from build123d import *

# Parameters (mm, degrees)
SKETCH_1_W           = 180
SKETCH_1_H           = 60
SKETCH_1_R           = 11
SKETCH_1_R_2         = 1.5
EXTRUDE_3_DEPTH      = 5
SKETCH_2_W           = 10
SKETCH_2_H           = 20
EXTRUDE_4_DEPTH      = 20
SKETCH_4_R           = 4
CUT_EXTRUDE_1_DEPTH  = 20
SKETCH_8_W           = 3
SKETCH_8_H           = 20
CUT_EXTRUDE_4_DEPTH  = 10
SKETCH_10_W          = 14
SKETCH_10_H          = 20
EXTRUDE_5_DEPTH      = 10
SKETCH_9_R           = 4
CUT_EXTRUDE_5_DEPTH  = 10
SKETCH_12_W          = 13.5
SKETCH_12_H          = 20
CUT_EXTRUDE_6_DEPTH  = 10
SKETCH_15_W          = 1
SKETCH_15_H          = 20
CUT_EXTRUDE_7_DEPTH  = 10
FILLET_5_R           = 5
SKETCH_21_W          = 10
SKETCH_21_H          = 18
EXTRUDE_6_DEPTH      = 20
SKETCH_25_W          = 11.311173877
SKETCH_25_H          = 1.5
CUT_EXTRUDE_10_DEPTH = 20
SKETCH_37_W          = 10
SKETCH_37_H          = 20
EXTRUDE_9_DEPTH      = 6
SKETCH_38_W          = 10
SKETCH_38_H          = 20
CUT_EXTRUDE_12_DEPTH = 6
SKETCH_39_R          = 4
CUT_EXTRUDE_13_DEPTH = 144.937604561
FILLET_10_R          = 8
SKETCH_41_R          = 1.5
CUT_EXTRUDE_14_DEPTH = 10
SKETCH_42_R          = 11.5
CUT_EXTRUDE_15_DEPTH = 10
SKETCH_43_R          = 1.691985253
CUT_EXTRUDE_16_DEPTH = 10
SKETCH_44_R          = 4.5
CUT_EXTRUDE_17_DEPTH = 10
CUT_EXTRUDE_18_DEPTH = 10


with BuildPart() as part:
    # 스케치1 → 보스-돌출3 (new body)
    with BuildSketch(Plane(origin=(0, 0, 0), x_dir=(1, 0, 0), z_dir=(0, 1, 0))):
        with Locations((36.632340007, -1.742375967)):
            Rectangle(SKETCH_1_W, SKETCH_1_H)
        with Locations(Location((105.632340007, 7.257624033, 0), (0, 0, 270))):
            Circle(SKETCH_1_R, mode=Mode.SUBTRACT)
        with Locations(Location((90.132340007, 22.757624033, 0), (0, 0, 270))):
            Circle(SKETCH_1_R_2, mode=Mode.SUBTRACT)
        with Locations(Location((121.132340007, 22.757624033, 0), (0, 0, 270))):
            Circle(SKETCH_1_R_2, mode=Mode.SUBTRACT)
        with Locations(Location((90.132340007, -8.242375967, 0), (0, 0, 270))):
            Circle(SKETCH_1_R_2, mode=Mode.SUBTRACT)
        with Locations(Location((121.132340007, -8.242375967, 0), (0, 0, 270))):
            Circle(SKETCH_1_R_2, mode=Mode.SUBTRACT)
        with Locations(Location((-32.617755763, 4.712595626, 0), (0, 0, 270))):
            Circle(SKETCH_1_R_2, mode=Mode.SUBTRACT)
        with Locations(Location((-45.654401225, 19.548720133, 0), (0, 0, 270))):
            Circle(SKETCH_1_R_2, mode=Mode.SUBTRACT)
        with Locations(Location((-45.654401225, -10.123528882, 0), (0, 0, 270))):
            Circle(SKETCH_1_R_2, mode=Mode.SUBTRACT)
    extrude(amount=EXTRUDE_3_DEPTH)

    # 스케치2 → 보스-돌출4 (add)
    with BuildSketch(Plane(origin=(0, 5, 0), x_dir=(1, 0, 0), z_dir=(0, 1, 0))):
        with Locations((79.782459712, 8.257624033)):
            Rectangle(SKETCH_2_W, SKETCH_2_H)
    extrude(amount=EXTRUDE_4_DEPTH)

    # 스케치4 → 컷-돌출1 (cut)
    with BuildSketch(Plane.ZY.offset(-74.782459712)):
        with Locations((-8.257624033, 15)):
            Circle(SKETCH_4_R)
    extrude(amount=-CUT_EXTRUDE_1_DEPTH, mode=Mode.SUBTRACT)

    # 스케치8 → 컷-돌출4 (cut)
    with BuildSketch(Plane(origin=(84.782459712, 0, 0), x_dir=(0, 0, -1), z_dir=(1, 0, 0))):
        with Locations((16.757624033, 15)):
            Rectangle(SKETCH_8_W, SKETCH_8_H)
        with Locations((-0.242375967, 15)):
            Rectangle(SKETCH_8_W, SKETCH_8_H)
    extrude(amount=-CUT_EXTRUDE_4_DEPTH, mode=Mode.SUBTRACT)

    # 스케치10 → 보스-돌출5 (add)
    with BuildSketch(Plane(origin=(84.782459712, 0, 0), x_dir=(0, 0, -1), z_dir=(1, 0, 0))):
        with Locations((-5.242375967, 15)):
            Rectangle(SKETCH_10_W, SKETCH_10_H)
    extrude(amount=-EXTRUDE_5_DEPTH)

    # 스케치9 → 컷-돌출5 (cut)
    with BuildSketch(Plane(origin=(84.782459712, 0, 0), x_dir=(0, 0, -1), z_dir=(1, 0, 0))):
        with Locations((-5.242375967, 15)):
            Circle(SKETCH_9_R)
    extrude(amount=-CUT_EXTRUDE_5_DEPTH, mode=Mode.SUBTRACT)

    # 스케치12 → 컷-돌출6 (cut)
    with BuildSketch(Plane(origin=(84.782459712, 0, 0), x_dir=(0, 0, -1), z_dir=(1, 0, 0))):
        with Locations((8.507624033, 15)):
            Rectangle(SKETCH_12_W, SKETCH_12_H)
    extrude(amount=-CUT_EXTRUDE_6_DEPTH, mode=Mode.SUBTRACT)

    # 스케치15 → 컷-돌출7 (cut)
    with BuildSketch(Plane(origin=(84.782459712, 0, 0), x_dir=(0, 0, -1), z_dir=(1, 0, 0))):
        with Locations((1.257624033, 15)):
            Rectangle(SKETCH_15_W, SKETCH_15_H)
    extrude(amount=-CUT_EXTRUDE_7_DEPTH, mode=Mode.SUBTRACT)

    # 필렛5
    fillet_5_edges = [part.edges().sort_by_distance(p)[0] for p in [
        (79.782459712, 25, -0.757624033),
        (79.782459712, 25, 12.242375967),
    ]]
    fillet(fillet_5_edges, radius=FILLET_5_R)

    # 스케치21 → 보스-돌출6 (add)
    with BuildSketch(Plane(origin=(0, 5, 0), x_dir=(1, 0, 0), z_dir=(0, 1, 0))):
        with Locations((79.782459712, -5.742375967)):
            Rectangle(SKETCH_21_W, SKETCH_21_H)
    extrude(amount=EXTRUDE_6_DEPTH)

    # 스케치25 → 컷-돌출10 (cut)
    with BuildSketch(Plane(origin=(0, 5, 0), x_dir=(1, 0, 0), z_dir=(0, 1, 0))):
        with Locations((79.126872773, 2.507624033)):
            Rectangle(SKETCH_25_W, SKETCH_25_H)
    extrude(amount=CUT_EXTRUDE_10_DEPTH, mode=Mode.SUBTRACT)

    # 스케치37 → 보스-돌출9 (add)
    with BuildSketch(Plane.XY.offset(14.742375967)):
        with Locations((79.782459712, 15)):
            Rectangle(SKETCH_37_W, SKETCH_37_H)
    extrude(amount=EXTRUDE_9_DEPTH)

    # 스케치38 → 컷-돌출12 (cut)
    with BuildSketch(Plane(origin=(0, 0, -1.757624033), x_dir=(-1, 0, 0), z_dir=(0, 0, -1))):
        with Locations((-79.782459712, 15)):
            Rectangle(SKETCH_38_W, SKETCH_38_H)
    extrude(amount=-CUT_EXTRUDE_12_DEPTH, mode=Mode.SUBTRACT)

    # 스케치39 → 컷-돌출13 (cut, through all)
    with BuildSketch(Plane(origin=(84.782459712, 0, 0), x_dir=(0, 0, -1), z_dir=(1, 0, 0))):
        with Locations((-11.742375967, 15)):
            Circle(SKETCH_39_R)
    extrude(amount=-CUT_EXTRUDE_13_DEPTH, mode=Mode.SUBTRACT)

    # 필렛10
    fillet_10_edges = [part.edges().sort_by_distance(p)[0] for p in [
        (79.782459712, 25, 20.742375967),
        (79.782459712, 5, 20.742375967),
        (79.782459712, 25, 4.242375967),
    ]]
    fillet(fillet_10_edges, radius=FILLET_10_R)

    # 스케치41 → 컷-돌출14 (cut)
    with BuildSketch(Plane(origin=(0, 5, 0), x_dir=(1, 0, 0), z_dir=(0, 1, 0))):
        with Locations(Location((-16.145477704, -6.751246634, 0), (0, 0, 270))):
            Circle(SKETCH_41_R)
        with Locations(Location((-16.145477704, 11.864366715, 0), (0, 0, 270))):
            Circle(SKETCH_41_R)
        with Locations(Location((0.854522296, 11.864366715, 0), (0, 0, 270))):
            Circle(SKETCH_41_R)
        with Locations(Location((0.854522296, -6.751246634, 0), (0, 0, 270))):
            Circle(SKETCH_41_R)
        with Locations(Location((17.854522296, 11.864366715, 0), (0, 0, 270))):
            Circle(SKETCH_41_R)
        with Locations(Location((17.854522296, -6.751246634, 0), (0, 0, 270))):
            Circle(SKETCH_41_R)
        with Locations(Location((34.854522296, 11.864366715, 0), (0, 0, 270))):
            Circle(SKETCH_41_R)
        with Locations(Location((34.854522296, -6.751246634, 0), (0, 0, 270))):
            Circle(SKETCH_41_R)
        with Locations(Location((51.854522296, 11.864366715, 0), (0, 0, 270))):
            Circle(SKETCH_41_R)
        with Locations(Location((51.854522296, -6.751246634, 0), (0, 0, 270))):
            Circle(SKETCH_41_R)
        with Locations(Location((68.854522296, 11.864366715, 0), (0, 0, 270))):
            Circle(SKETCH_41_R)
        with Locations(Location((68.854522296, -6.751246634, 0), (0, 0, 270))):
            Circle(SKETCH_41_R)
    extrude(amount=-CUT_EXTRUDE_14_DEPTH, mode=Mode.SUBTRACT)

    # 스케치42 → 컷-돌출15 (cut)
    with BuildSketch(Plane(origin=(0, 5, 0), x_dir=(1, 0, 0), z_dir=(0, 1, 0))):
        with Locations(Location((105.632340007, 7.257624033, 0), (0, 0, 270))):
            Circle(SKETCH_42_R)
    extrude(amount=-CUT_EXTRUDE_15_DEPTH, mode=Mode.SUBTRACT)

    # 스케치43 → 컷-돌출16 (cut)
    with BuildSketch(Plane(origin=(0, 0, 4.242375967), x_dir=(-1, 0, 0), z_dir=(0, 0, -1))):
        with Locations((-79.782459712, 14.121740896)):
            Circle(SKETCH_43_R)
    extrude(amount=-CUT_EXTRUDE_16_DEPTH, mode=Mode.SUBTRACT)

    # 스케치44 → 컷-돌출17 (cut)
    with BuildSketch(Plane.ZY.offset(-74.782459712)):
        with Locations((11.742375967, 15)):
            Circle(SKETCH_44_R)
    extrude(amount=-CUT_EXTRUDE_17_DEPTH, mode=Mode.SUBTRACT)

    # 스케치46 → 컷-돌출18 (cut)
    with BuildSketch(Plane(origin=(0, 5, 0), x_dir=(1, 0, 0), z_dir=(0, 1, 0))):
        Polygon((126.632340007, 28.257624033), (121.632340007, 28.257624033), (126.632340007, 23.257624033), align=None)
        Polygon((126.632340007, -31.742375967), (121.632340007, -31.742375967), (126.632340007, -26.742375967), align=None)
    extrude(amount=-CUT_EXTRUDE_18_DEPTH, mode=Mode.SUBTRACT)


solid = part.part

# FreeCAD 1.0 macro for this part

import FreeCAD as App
import Part
import Sketcher
Q = App.Units.Quantity


def edges_at(feature, points):
    """Names of the edges that pass closest to the given points."""
    edges = feature.Shape.Edges
    near = lambda p: min(range(len(edges)), key=lambda i: edges[i].distToShape(Part.Vertex(*p))[0])
    return sorted({f"Edge{near(p) + 1}" for p in points})

doc = App.newDocument("Part")
body = doc.addObject("PartDesign::Body", "Body")

# Sketch on XZ plane
sketch1 = doc.addObject("Sketcher::SketchObject", "Sketch")
body.addObject(sketch1)
sketch1.AttachmentSupport = (doc.XZ_Plane, [""])
sketch1.MapMode = "FlatFace"
sketch1.addGeometry([
    Part.LineSegment(App.Vector(-53.36766, -28.257624, 0), App.Vector(-53.36766, 31.742376, 0)),  # 0
    Part.LineSegment(App.Vector(-53.36766, 31.742376, 0), App.Vector(126.63234, 31.742376, 0)),  # 1
    Part.LineSegment(App.Vector(126.63234, 31.742376, 0), App.Vector(126.63234, -28.257624, 0)),  # 2
    Part.LineSegment(App.Vector(126.63234, -28.257624, 0), App.Vector(-53.36766, -28.257624, 0)),  # 3
    Part.Circle(App.Vector(-45.654401, 10.123529, 0), App.Vector(0, 0, 1), 1.5),  # 4
    Part.Circle(App.Vector(-32.617756, -4.712596, 0), App.Vector(0, 0, 1), 1.5),  # 5
    Part.Circle(App.Vector(90.13234, 8.242376, 0), App.Vector(0, 0, 1), 1.5),  # 6
    Part.Circle(App.Vector(121.13234, 8.242376, 0), App.Vector(0, 0, 1), 1.5),  # 7
    Part.Circle(App.Vector(-45.654401, -19.54872, 0), App.Vector(0, 0, 1), 1.5),  # 8
    Part.Circle(App.Vector(105.63234, -7.257624, 0), App.Vector(0, 0, 1), 11),  # 9
    Part.Circle(App.Vector(90.13234, -22.757624, 0), App.Vector(0, 0, 1), 1.5),  # 10
    Part.Circle(App.Vector(121.13234, -22.757624, 0), App.Vector(0, 0, 1), 1.5),  # 11
], False)
sketch1.addConstraint([
    Sketcher.Constraint("Coincident", 0, 2, 1, 1),
    Sketcher.Constraint("Coincident", 1, 2, 2, 1),
    Sketcher.Constraint("Coincident", 2, 2, 3, 1),
    Sketcher.Constraint("Coincident", 3, 2, 0, 1),
    Sketcher.Constraint("Vertical", 0),
    Sketcher.Constraint("Horizontal", 1),
    Sketcher.Constraint("Vertical", 2),
    Sketcher.Constraint("Horizontal", 3),
    Sketcher.Constraint("Equal", 4, 5),
    Sketcher.Constraint("Equal", 5, 6),
    Sketcher.Constraint("Equal", 6, 7),
    Sketcher.Constraint("Equal", 7, 8),
    Sketcher.Constraint("Equal", 8, 10),
    Sketcher.Constraint("Equal", 10, 11),
    Sketcher.Constraint("Horizontal", 6, 3, 7, 3),
    Sketcher.Constraint("Horizontal", 10, 3, 11, 3),
    Sketcher.Constraint("Vertical", 4, 3, 8, 3),
    Sketcher.Constraint("Vertical", 6, 3, 10, 3),
    Sketcher.Constraint("Vertical", 7, 3, 11, 3),
    Sketcher.Constraint("Diameter", 4, Q("3 mm")),
    Sketcher.Constraint("Diameter", 9, Q("22 mm")),
    Sketcher.Constraint("DistanceX", 1, 1, 1, 2, Q("180 mm")),
    Sketcher.Constraint("DistanceY", 0, 1, 0, 2, Q("60 mm")),
    Sketcher.Constraint("DistanceX", 6, 3, 7, 3, Q("31 mm")),
    Sketcher.Constraint("DistanceY", 10, 3, 6, 3, Q("31 mm")),
    Sketcher.Constraint("DistanceX", 9, 3, 1, 2, Q("21 mm")),
    Sketcher.Constraint("DistanceY", 9, 3, 1, 2, Q("39 mm")),
    Sketcher.Constraint("DistanceX", 6, 3, 9, 3, Q("15.5 mm")),
    Sketcher.Constraint("DistanceY", 9, 3, 6, 3, Q("15.5 mm")),
    Sketcher.Constraint("DistanceX", 4, 3, -1, 1, Q("45.654401 mm")),
    Sketcher.Constraint("DistanceY", -1, 1, 4, 3, Q("10.123529 mm")),
    Sketcher.Constraint("DistanceX", -1, 1, 6, 3, Q("90.13234 mm")),
    Sketcher.Constraint("DistanceY", 8, 3, -1, 1, Q("19.54872 mm")),
    Sketcher.Constraint("DistanceY", 5, 3, 6, 3, Q("12.954972 mm")),
    Sketcher.Constraint("DistanceX", 5, 3, -1, 1, Q("32.617756 mm")),
    Sketcher.Constraint("DistanceY", 5, 3, -1, 1, Q("4.712596 mm")),
])
pad1 = doc.addObject("PartDesign::Pad", "Pad")
body.addObject(pad1)
pad1.Profile = sketch1
pad1.Length = 5
pad1.Reversed = True

# Sketch on XZ plane
sketch2 = doc.addObject("Sketcher::SketchObject", "Sketch001")
body.addObject(sketch2)
sketch2.AttachmentSupport = (doc.XZ_Plane, [""])
sketch2.MapMode = "FlatFace"
sketch2.AttachmentOffset = App.Placement(App.Vector(0, 0, -5), App.Rotation())
sketch2.addGeometry([
    Part.LineSegment(App.Vector(74.78246, -18.257624, 0), App.Vector(74.78246, 1.742376, 0)),
    Part.LineSegment(App.Vector(74.78246, 1.742376, 0), App.Vector(84.78246, 1.742376, 0)),
    Part.LineSegment(App.Vector(84.78246, 1.742376, 0), App.Vector(84.78246, -18.257624, 0)),
    Part.LineSegment(App.Vector(84.78246, -18.257624, 0), App.Vector(74.78246, -18.257624, 0)),
], False)
sketch2.addConstraint([
    Sketcher.Constraint("Coincident", 0, 2, 1, 1),
    Sketcher.Constraint("Coincident", 1, 2, 2, 1),
    Sketcher.Constraint("Coincident", 2, 2, 3, 1),
    Sketcher.Constraint("Coincident", 3, 2, 0, 1),
    Sketcher.Constraint("Vertical", 0),
    Sketcher.Constraint("Horizontal", 1),
    Sketcher.Constraint("Vertical", 2),
    Sketcher.Constraint("Horizontal", 3),
    Sketcher.Constraint("DistanceX", 1, 1, 1, 2, Q("10 mm")),
    Sketcher.Constraint("DistanceY", 0, 1, 0, 2, Q("20 mm")),
    Sketcher.Constraint("DistanceX", -1, 1, 0, 2, Q("74.78246 mm")),
    Sketcher.Constraint("DistanceY", -1, 1, 0, 2, Q("1.742376 mm")),
])
pad2 = doc.addObject("PartDesign::Pad", "Pad001")
body.addObject(pad2)
pad2.Profile = sketch2
pad2.Length = 20
pad2.Reversed = True

# Sketch on YZ plane
sketch3 = doc.addObject("Sketcher::SketchObject", "Sketch002")
body.addObject(sketch3)
sketch3.AttachmentSupport = (doc.YZ_Plane, [""])
sketch3.MapMode = "FlatFace"
sketch3.AttachmentOffset = App.Placement(App.Vector(0, 0, 74.78246), App.Rotation())
sketch3.addGeometry(Part.Circle(App.Vector(15, -8.257624, 0), App.Vector(0, 0, 1), 4), False)
sketch3.addConstraint([
    Sketcher.Constraint("Diameter", 0, Q("8 mm")),
    Sketcher.Constraint("DistanceX", -1, 1, 0, 3, Q("15 mm")),
    Sketcher.Constraint("DistanceY", 0, 3, -1, 1, Q("8.257624 mm")),
])
pocket1 = doc.addObject("PartDesign::Pocket", "Pocket")
body.addObject(pocket1)
pocket1.Profile = sketch3
pocket1.Length = 20
pocket1.Reversed = True

# Sketch on YZ plane
sketch4 = doc.addObject("Sketcher::SketchObject", "Sketch003")
body.addObject(sketch4)
sketch4.AttachmentSupport = (doc.YZ_Plane, [""])
sketch4.MapMode = "FlatFace"
sketch4.AttachmentOffset = App.Placement(App.Vector(0, 0, 84.78246), App.Rotation())
sketch4.addGeometry([
    Part.LineSegment(App.Vector(25, -15.257624, 0), App.Vector(5, -15.257624, 0)),  # 0
    Part.LineSegment(App.Vector(5, -15.257624, 0), App.Vector(5, -18.257624, 0)),  # 1
    Part.LineSegment(App.Vector(5, -18.257624, 0), App.Vector(25, -18.257624, 0)),  # 2
    Part.LineSegment(App.Vector(25, -18.257624, 0), App.Vector(25, -15.257624, 0)),  # 3
    Part.LineSegment(App.Vector(25, 1.742376, 0), App.Vector(5, 1.742376, 0)),  # 4
    Part.LineSegment(App.Vector(5, 1.742376, 0), App.Vector(5, -1.257624, 0)),  # 5
    Part.LineSegment(App.Vector(5, -1.257624, 0), App.Vector(25, -1.257624, 0)),  # 6
    Part.LineSegment(App.Vector(25, -1.257624, 0), App.Vector(25, 1.742376, 0)),  # 7
], False)
sketch4.addConstraint([
    Sketcher.Constraint("Coincident", 0, 2, 1, 1),
    Sketcher.Constraint("Coincident", 1, 2, 2, 1),
    Sketcher.Constraint("Coincident", 2, 2, 3, 1),
    Sketcher.Constraint("Coincident", 3, 2, 0, 1),
    Sketcher.Constraint("Coincident", 4, 2, 5, 1),
    Sketcher.Constraint("Coincident", 5, 2, 6, 1),
    Sketcher.Constraint("Coincident", 6, 2, 7, 1),
    Sketcher.Constraint("Coincident", 7, 2, 4, 1),
    Sketcher.Constraint("Horizontal", 0),
    Sketcher.Constraint("Vertical", 1),
    Sketcher.Constraint("Horizontal", 2),
    Sketcher.Constraint("Vertical", 3),
    Sketcher.Constraint("Horizontal", 4),
    Sketcher.Constraint("Vertical", 5),
    Sketcher.Constraint("Horizontal", 6),
    Sketcher.Constraint("Vertical", 7),
    Sketcher.Constraint("Vertical", 1, 2, 4, 2),
    Sketcher.Constraint("Vertical", 3, 2, 6, 2),
    Sketcher.Constraint("Equal", 3, 5),
    Sketcher.Constraint("DistanceX", 0, 2, 0, 1, Q("20 mm")),
    Sketcher.Constraint("DistanceY", 1, 2, 1, 1, Q("3 mm")),
    Sketcher.Constraint("DistanceX", -1, 1, 0, 2, Q("5 mm")),
    Sketcher.Constraint("DistanceY", 0, 2, 4, 2, Q("17 mm")),
    Sketcher.Constraint("DistanceY", 0, 2, -1, 1, Q("15.257624 mm")),
])
pocket2 = doc.addObject("PartDesign::Pocket", "Pocket001")
body.addObject(pocket2)
pocket2.Profile = sketch4
pocket2.Length = 10

# Sketch on YZ plane
sketch5 = doc.addObject("Sketcher::SketchObject", "Sketch004")
body.addObject(sketch5)
sketch5.AttachmentSupport = (doc.YZ_Plane, [""])
sketch5.MapMode = "FlatFace"
sketch5.AttachmentOffset = App.Placement(App.Vector(0, 0, 84.78246), App.Rotation())
sketch5.addGeometry([
    Part.LineSegment(App.Vector(25, 12.242376, 0), App.Vector(5, 12.242376, 0)),
    Part.LineSegment(App.Vector(5, 12.242376, 0), App.Vector(5, -1.757624, 0)),
    Part.LineSegment(App.Vector(5, -1.757624, 0), App.Vector(25, -1.757624, 0)),
    Part.LineSegment(App.Vector(25, -1.757624, 0), App.Vector(25, 12.242376, 0)),
], False)
sketch5.addConstraint([
    Sketcher.Constraint("Coincident", 0, 2, 1, 1),
    Sketcher.Constraint("Coincident", 1, 2, 2, 1),
    Sketcher.Constraint("Coincident", 2, 2, 3, 1),
    Sketcher.Constraint("Coincident", 3, 2, 0, 1),
    Sketcher.Constraint("Horizontal", 0),
    Sketcher.Constraint("Vertical", 1),
    Sketcher.Constraint("Horizontal", 2),
    Sketcher.Constraint("Vertical", 3),
    Sketcher.Constraint("DistanceX", 0, 2, 0, 1, Q("20 mm")),
    Sketcher.Constraint("DistanceY", 1, 2, 1, 1, Q("14 mm")),
    Sketcher.Constraint("DistanceX", -1, 1, 0, 2, Q("5 mm")),
    Sketcher.Constraint("DistanceY", -1, 1, 0, 2, Q("12.242376 mm")),
])
pad3 = doc.addObject("PartDesign::Pad", "Pad002")
body.addObject(pad3)
pad3.Profile = sketch5
pad3.Length = 10
pad3.Reversed = True

# Sketch on YZ plane
sketch6 = doc.addObject("Sketcher::SketchObject", "Sketch005")
body.addObject(sketch6)
sketch6.AttachmentSupport = (doc.YZ_Plane, [""])
sketch6.MapMode = "FlatFace"
sketch6.AttachmentOffset = App.Placement(App.Vector(0, 0, 84.78246), App.Rotation())
sketch6.addGeometry(Part.Circle(App.Vector(15, 5.242376, 0), App.Vector(0, 0, 1), 4), False)
sketch6.addConstraint([
    Sketcher.Constraint("Diameter", 0, Q("8 mm")),
    Sketcher.Constraint("DistanceX", -1, 1, 0, 3, Q("15 mm")),
    Sketcher.Constraint("DistanceY", -1, 1, 0, 3, Q("5.242376 mm")),
])
pocket3 = doc.addObject("PartDesign::Pocket", "Pocket002")
body.addObject(pocket3)
pocket3.Profile = sketch6
pocket3.Length = 10

# Sketch on YZ plane
sketch7 = doc.addObject("Sketcher::SketchObject", "Sketch006")
body.addObject(sketch7)
sketch7.AttachmentSupport = (doc.YZ_Plane, [""])
sketch7.MapMode = "FlatFace"
sketch7.AttachmentOffset = App.Placement(App.Vector(0, 0, 84.78246), App.Rotation())
sketch7.addGeometry([
    Part.LineSegment(App.Vector(25, -1.757624, 0), App.Vector(5, -1.757624, 0)),
    Part.LineSegment(App.Vector(5, -1.757624, 0), App.Vector(5, -15.257624, 0)),
    Part.LineSegment(App.Vector(5, -15.257624, 0), App.Vector(25, -15.257624, 0)),
    Part.LineSegment(App.Vector(25, -15.257624, 0), App.Vector(25, -1.757624, 0)),
], False)
sketch7.addConstraint([
    Sketcher.Constraint("Coincident", 0, 2, 1, 1),
    Sketcher.Constraint("Coincident", 1, 2, 2, 1),
    Sketcher.Constraint("Coincident", 2, 2, 3, 1),
    Sketcher.Constraint("Coincident", 3, 2, 0, 1),
    Sketcher.Constraint("Horizontal", 0),
    Sketcher.Constraint("Vertical", 1),
    Sketcher.Constraint("Horizontal", 2),
    Sketcher.Constraint("Vertical", 3),
    Sketcher.Constraint("DistanceX", 0, 2, 0, 1, Q("20 mm")),
    Sketcher.Constraint("DistanceY", 1, 2, 1, 1, Q("13.5 mm")),
    Sketcher.Constraint("DistanceX", -1, 1, 0, 2, Q("5 mm")),
    Sketcher.Constraint("DistanceY", 0, 2, -1, 1, Q("1.757624 mm")),
])
pocket4 = doc.addObject("PartDesign::Pocket", "Pocket003")
body.addObject(pocket4)
pocket4.Profile = sketch7
pocket4.Length = 10

# Sketch on YZ plane
sketch8 = doc.addObject("Sketcher::SketchObject", "Sketch007")
body.addObject(sketch8)
sketch8.AttachmentSupport = (doc.YZ_Plane, [""])
sketch8.MapMode = "FlatFace"
sketch8.AttachmentOffset = App.Placement(App.Vector(0, 0, 84.78246), App.Rotation())
sketch8.addGeometry([
    Part.LineSegment(App.Vector(25, -0.757624, 0), App.Vector(5, -0.757624, 0)),
    Part.LineSegment(App.Vector(5, -0.757624, 0), App.Vector(5, -1.757624, 0)),
    Part.LineSegment(App.Vector(5, -1.757624, 0), App.Vector(25, -1.757624, 0)),
    Part.LineSegment(App.Vector(25, -1.757624, 0), App.Vector(25, -0.757624, 0)),
], False)
sketch8.addConstraint([
    Sketcher.Constraint("Coincident", 0, 2, 1, 1),
    Sketcher.Constraint("Coincident", 1, 2, 2, 1),
    Sketcher.Constraint("Coincident", 2, 2, 3, 1),
    Sketcher.Constraint("Coincident", 3, 2, 0, 1),
    Sketcher.Constraint("Horizontal", 0),
    Sketcher.Constraint("Vertical", 1),
    Sketcher.Constraint("Horizontal", 2),
    Sketcher.Constraint("Vertical", 3),
    Sketcher.Constraint("DistanceX", 0, 2, 0, 1, Q("20 mm")),
    Sketcher.Constraint("DistanceY", 1, 2, 1, 1, Q("1 mm")),
    Sketcher.Constraint("DistanceX", -1, 1, 0, 2, Q("5 mm")),
    Sketcher.Constraint("DistanceY", 0, 2, -1, 1, Q("0.757624 mm")),
])
pocket5 = doc.addObject("PartDesign::Pocket", "Pocket004")
body.addObject(pocket5)
pocket5.Profile = sketch8
pocket5.Length = 10
doc.recompute()

fillet = doc.addObject("PartDesign::Fillet", "Fillet")
body.addObject(fillet)
fillet.Base = (pocket5, edges_at(pocket5, [(79.782, 25, -0.758), (79.782, 25, 12.242)]))
fillet.Radius = 5

# Sketch on XZ plane
sketch9 = doc.addObject("Sketcher::SketchObject", "Sketch008")
body.addObject(sketch9)
sketch9.AttachmentSupport = (doc.XZ_Plane, [""])
sketch9.MapMode = "FlatFace"
sketch9.AttachmentOffset = App.Placement(App.Vector(0, 0, -5), App.Rotation())
sketch9.addGeometry([
    Part.LineSegment(App.Vector(74.78246, -3.257624, 0), App.Vector(74.78246, 14.742376, 0)),
    Part.LineSegment(App.Vector(74.78246, 14.742376, 0), App.Vector(84.78246, 14.742376, 0)),
    Part.LineSegment(App.Vector(84.78246, 14.742376, 0), App.Vector(84.78246, -3.257624, 0)),
    Part.LineSegment(App.Vector(84.78246, -3.257624, 0), App.Vector(74.78246, -3.257624, 0)),
], False)
sketch9.addConstraint([
    Sketcher.Constraint("Coincident", 0, 2, 1, 1),
    Sketcher.Constraint("Coincident", 1, 2, 2, 1),
    Sketcher.Constraint("Coincident", 2, 2, 3, 1),
    Sketcher.Constraint("Coincident", 3, 2, 0, 1),
    Sketcher.Constraint("Vertical", 0),
    Sketcher.Constraint("Horizontal", 1),
    Sketcher.Constraint("Vertical", 2),
    Sketcher.Constraint("Horizontal", 3),
    Sketcher.Constraint("DistanceX", 1, 1, 1, 2, Q("10 mm")),
    Sketcher.Constraint("DistanceY", 0, 1, 0, 2, Q("18 mm")),
    Sketcher.Constraint("DistanceX", -1, 1, 0, 2, Q("74.78246 mm")),
    Sketcher.Constraint("DistanceY", -1, 1, 0, 2, Q("14.742376 mm")),
])
pad4 = doc.addObject("PartDesign::Pad", "Pad003")
body.addObject(pad4)
pad4.Profile = sketch9
pad4.Length = 20
pad4.Reversed = True

# Sketch on XZ plane
sketch10 = doc.addObject("Sketcher::SketchObject", "Sketch009")
body.addObject(sketch10)
sketch10.AttachmentSupport = (doc.XZ_Plane, [""])
sketch10.MapMode = "FlatFace"
sketch10.AttachmentOffset = App.Placement(App.Vector(0, 0, -5), App.Rotation())
sketch10.addGeometry([
    Part.LineSegment(App.Vector(73.471286, -3.257624, 0), App.Vector(73.471286, -1.757624, 0)),
    Part.LineSegment(App.Vector(73.471286, -1.757624, 0), App.Vector(84.78246, -1.757624, 0)),
    Part.LineSegment(App.Vector(84.78246, -1.757624, 0), App.Vector(84.78246, -3.257624, 0)),
    Part.LineSegment(App.Vector(84.78246, -3.257624, 0), App.Vector(73.471286, -3.257624, 0)),
], False)
sketch10.addConstraint([
    Sketcher.Constraint("Coincident", 0, 2, 1, 1),
    Sketcher.Constraint("Coincident", 1, 2, 2, 1),
    Sketcher.Constraint("Coincident", 2, 2, 3, 1),
    Sketcher.Constraint("Coincident", 3, 2, 0, 1),
    Sketcher.Constraint("Vertical", 0),
    Sketcher.Constraint("Horizontal", 1),
    Sketcher.Constraint("Vertical", 2),
    Sketcher.Constraint("Horizontal", 3),
    Sketcher.Constraint("DistanceY", 0, 1, 0, 2, Q("1.5 mm")),
    Sketcher.Constraint("DistanceX", 1, 1, 1, 2, Q("11.311174 mm")),
    Sketcher.Constraint("DistanceX", -1, 1, 1, 2, Q("84.78246 mm")),
    Sketcher.Constraint("DistanceY", 0, 2, -1, 1, Q("1.757624 mm")),
])
pocket6 = doc.addObject("PartDesign::Pocket", "Pocket005")
body.addObject(pocket6)
pocket6.Profile = sketch10
pocket6.Length = 20

# Sketch on XY plane
sketch11 = doc.addObject("Sketcher::SketchObject", "Sketch010")
body.addObject(sketch11)
sketch11.AttachmentSupport = (doc.XY_Plane, [""])
sketch11.MapMode = "FlatFace"
sketch11.AttachmentOffset = App.Placement(App.Vector(0, 0, 14.742376), App.Rotation())
sketch11.addGeometry([
    Part.LineSegment(App.Vector(74.78246, 25, 0), App.Vector(74.78246, 5, 0)),
    Part.LineSegment(App.Vector(74.78246, 5, 0), App.Vector(84.78246, 5, 0)),
    Part.LineSegment(App.Vector(84.78246, 5, 0), App.Vector(84.78246, 25, 0)),
    Part.LineSegment(App.Vector(84.78246, 25, 0), App.Vector(74.78246, 25, 0)),
], False)
sketch11.addConstraint([
    Sketcher.Constraint("Coincident", 0, 2, 1, 1),
    Sketcher.Constraint("Coincident", 1, 2, 2, 1),
    Sketcher.Constraint("Coincident", 2, 2, 3, 1),
    Sketcher.Constraint("Coincident", 3, 2, 0, 1),
    Sketcher.Constraint("Vertical", 0),
    Sketcher.Constraint("Horizontal", 1),
    Sketcher.Constraint("Vertical", 2),
    Sketcher.Constraint("Horizontal", 3),
    Sketcher.Constraint("DistanceX", 1, 1, 1, 2, Q("10 mm")),
    Sketcher.Constraint("DistanceY", 0, 2, 0, 1, Q("20 mm")),
    Sketcher.Constraint("DistanceY", -1, 1, 0, 2, Q("5 mm")),
    Sketcher.Constraint("DistanceX", -1, 1, 0, 2, Q("74.78246 mm")),
])
pad5 = doc.addObject("PartDesign::Pad", "Pad004")
body.addObject(pad5)
pad5.Profile = sketch11
pad5.Length = 6

# Sketch on XY plane
sketch12 = doc.addObject("Sketcher::SketchObject", "Sketch011")
body.addObject(sketch12)
sketch12.AttachmentSupport = (doc.XY_Plane, [""])
sketch12.MapMode = "FlatFace"
sketch12.AttachmentOffset = App.Placement(App.Vector(0, 0, -1.757624), App.Rotation())
sketch12.addGeometry([
    Part.LineSegment(App.Vector(84.78246, 25, 0), App.Vector(84.78246, 5, 0)),
    Part.LineSegment(App.Vector(84.78246, 5, 0), App.Vector(74.78246, 5, 0)),
    Part.LineSegment(App.Vector(74.78246, 5, 0), App.Vector(74.78246, 25, 0)),
    Part.LineSegment(App.Vector(74.78246, 25, 0), App.Vector(84.78246, 25, 0)),
], False)
sketch12.addConstraint([
    Sketcher.Constraint("Coincident", 0, 2, 1, 1),
    Sketcher.Constraint("Coincident", 1, 2, 2, 1),
    Sketcher.Constraint("Coincident", 2, 2, 3, 1),
    Sketcher.Constraint("Coincident", 3, 2, 0, 1),
    Sketcher.Constraint("Vertical", 0),
    Sketcher.Constraint("Horizontal", 1),
    Sketcher.Constraint("Vertical", 2),
    Sketcher.Constraint("Horizontal", 3),
    Sketcher.Constraint("DistanceX", 1, 2, 1, 1, Q("10 mm")),
    Sketcher.Constraint("DistanceY", 0, 2, 0, 1, Q("20 mm")),
    Sketcher.Constraint("DistanceY", -1, 1, 0, 2, Q("5 mm")),
    Sketcher.Constraint("DistanceX", -1, 1, 0, 2, Q("84.78246 mm")),
])
pocket7 = doc.addObject("PartDesign::Pocket", "Pocket006")
body.addObject(pocket7)
pocket7.Profile = sketch12
pocket7.Length = 6
pocket7.Reversed = True

# Sketch on YZ plane
sketch13 = doc.addObject("Sketcher::SketchObject", "Sketch012")
body.addObject(sketch13)
sketch13.AttachmentSupport = (doc.YZ_Plane, [""])
sketch13.MapMode = "FlatFace"
sketch13.AttachmentOffset = App.Placement(App.Vector(0, 0, 84.78246), App.Rotation())
sketch13.addGeometry(Part.Circle(App.Vector(15, 11.742376, 0), App.Vector(0, 0, 1), 4), False)
sketch13.addConstraint([
    Sketcher.Constraint("Diameter", 0, Q("8 mm")),
    Sketcher.Constraint("DistanceX", -1, 1, 0, 3, Q("15 mm")),
    Sketcher.Constraint("DistanceY", -1, 1, 0, 3, Q("11.742376 mm")),
])
pocket8 = doc.addObject("PartDesign::Pocket", "Pocket007")
body.addObject(pocket8)
pocket8.Profile = sketch13
pocket8.Type = "ThroughAll"
doc.recompute()

fillet2 = doc.addObject("PartDesign::Fillet", "Fillet001")
body.addObject(fillet2)
fillet2.Base = (pocket8, edges_at(pocket8, [(79.782, 25, 20.742), (79.782, 5, 20.742), (79.782, 25, 4.242)]))
fillet2.Radius = 8

# Sketch on XZ plane
sketch14 = doc.addObject("Sketcher::SketchObject", "Sketch013")
body.addObject(sketch14)
sketch14.AttachmentSupport = (doc.XZ_Plane, [""])
sketch14.MapMode = "FlatFace"
sketch14.AttachmentOffset = App.Placement(App.Vector(0, 0, -5), App.Rotation())
sketch14.addGeometry([
    Part.Circle(App.Vector(-16.145478, 6.751247, 0), App.Vector(0, 0, 1), 1.5),  # 0
    Part.Circle(App.Vector(-16.145478, -11.864367, 0), App.Vector(0, 0, 1), 1.5),  # 1
    Part.Circle(App.Vector(0.854522, -11.864367, 0), App.Vector(0, 0, 1), 1.5),  # 2
    Part.Circle(App.Vector(0.854522, 6.751247, 0), App.Vector(0, 0, 1), 1.5),  # 3
    Part.Circle(App.Vector(17.854522, -11.864367, 0), App.Vector(0, 0, 1), 1.5),  # 4
    Part.Circle(App.Vector(17.854522, 6.751247, 0), App.Vector(0, 0, 1), 1.5),  # 5
    Part.Circle(App.Vector(34.854522, -11.864367, 0), App.Vector(0, 0, 1), 1.5),  # 6
    Part.Circle(App.Vector(34.854522, 6.751247, 0), App.Vector(0, 0, 1), 1.5),  # 7
    Part.Circle(App.Vector(51.854522, -11.864367, 0), App.Vector(0, 0, 1), 1.5),  # 8
    Part.Circle(App.Vector(51.854522, 6.751247, 0), App.Vector(0, 0, 1), 1.5),  # 9
    Part.Circle(App.Vector(68.854522, -11.864367, 0), App.Vector(0, 0, 1), 1.5),  # 10
    Part.Circle(App.Vector(68.854522, 6.751247, 0), App.Vector(0, 0, 1), 1.5),  # 11
], False)
sketch14.addConstraint([
    Sketcher.Constraint("Equal", 0, 1),
    Sketcher.Constraint("Equal", 1, 2),
    Sketcher.Constraint("Equal", 2, 3),
    Sketcher.Constraint("Equal", 3, 4),
    Sketcher.Constraint("Equal", 4, 5),
    Sketcher.Constraint("Equal", 5, 6),
    Sketcher.Constraint("Equal", 6, 7),
    Sketcher.Constraint("Equal", 7, 8),
    Sketcher.Constraint("Equal", 8, 9),
    Sketcher.Constraint("Equal", 9, 10),
    Sketcher.Constraint("Equal", 10, 11),
    Sketcher.Constraint("Horizontal", 1, 3, 2, 3),
    Sketcher.Constraint("Horizontal", 0, 3, 3, 3),
    Sketcher.Constraint("Horizontal", 2, 3, 4, 3),
    Sketcher.Constraint("Horizontal", 3, 3, 5, 3),
    Sketcher.Constraint("Horizontal", 4, 3, 6, 3),
    Sketcher.Constraint("Horizontal", 5, 3, 7, 3),
    Sketcher.Constraint("Horizontal", 6, 3, 8, 3),
    Sketcher.Constraint("Horizontal", 7, 3, 9, 3),
    Sketcher.Constraint("Horizontal", 8, 3, 10, 3),
    Sketcher.Constraint("Horizontal", 9, 3, 11, 3),
    Sketcher.Constraint("Vertical", 0, 3, 1, 3),
    Sketcher.Constraint("Vertical", 2, 3, 3, 3),
    Sketcher.Constraint("Vertical", 4, 3, 5, 3),
    Sketcher.Constraint("Vertical", 6, 3, 7, 3),
    Sketcher.Constraint("Vertical", 8, 3, 9, 3),
    Sketcher.Constraint("Vertical", 10, 3, 11, 3),
    Sketcher.Constraint("Diameter", 0, Q("3 mm")),
    Sketcher.Constraint("DistanceX", 1, 3, 2, 3, Q("17 mm")),
    Sketcher.Constraint("DistanceX", 2, 3, 4, 3, Q("17 mm")),
    Sketcher.Constraint("DistanceX", 4, 3, 6, 3, Q("17 mm")),
    Sketcher.Constraint("DistanceX", 6, 3, 8, 3, Q("17 mm")),
    Sketcher.Constraint("DistanceX", 8, 3, 10, 3, Q("17 mm")),
    Sketcher.Constraint("DistanceX", 0, 3, -1, 1, Q("16.145478 mm")),
    Sketcher.Constraint("DistanceY", -1, 1, 0, 3, Q("6.751247 mm")),
    Sketcher.Constraint("DistanceY", 1, 3, -1, 1, Q("11.864367 mm")),
])
pocket9 = doc.addObject("PartDesign::Pocket", "Pocket008")
body.addObject(pocket9)
pocket9.Profile = sketch14
pocket9.Length = 10
pocket9.Reversed = True

# Sketch on XZ plane
sketch15 = doc.addObject("Sketcher::SketchObject", "Sketch014")
body.addObject(sketch15)
sketch15.AttachmentSupport = (doc.XZ_Plane, [""])
sketch15.MapMode = "FlatFace"
sketch15.AttachmentOffset = App.Placement(App.Vector(0, 0, -5), App.Rotation())
sketch15.addGeometry(Part.Circle(App.Vector(105.63234, -7.257624, 0), App.Vector(0, 0, 1), 11.5), False)
sketch15.addConstraint([
    Sketcher.Constraint("Diameter", 0, Q("23 mm")),
    Sketcher.Constraint("DistanceX", -1, 1, 0, 3, Q("105.63234 mm")),
    Sketcher.Constraint("DistanceY", 0, 3, -1, 1, Q("7.257624 mm")),
])
pocket10 = doc.addObject("PartDesign::Pocket", "Pocket009")
body.addObject(pocket10)
pocket10.Profile = sketch15
pocket10.Length = 10
pocket10.Reversed = True

# Sketch on XY plane
sketch16 = doc.addObject("Sketcher::SketchObject", "Sketch015")
body.addObject(sketch16)
sketch16.AttachmentSupport = (doc.XY_Plane, [""])
sketch16.MapMode = "FlatFace"
sketch16.AttachmentOffset = App.Placement(App.Vector(0, 0, 4.242376), App.Rotation())
sketch16.addGeometry(Part.Circle(App.Vector(79.78246, 14.121741, 0), App.Vector(0, 0, 1), 1.691985), False)
sketch16.addConstraint([
    Sketcher.Constraint("Diameter", 0, Q("3.383971 mm")),
    Sketcher.Constraint("DistanceX", -1, 1, 0, 3, Q("79.78246 mm")),
    Sketcher.Constraint("DistanceY", -1, 1, 0, 3, Q("14.121741 mm")),
])
pocket11 = doc.addObject("PartDesign::Pocket", "Pocket010")
body.addObject(pocket11)
pocket11.Profile = sketch16
pocket11.Length = 10
pocket11.Reversed = True

# Sketch on YZ plane
sketch17 = doc.addObject("Sketcher::SketchObject", "Sketch016")
body.addObject(sketch17)
sketch17.AttachmentSupport = (doc.YZ_Plane, [""])
sketch17.MapMode = "FlatFace"
sketch17.AttachmentOffset = App.Placement(App.Vector(0, 0, 74.78246), App.Rotation())
sketch17.addGeometry(Part.Circle(App.Vector(15, 11.742376, 0), App.Vector(0, 0, 1), 4.5), False)
sketch17.addConstraint([
    Sketcher.Constraint("Diameter", 0, Q("9 mm")),
    Sketcher.Constraint("DistanceX", -1, 1, 0, 3, Q("15 mm")),
    Sketcher.Constraint("DistanceY", -1, 1, 0, 3, Q("11.742376 mm")),
])
pocket12 = doc.addObject("PartDesign::Pocket", "Pocket011")
body.addObject(pocket12)
pocket12.Profile = sketch17
pocket12.Length = 10
pocket12.Reversed = True

# Sketch on XZ plane
sketch18 = doc.addObject("Sketcher::SketchObject", "Sketch017")
body.addObject(sketch18)
sketch18.AttachmentSupport = (doc.XZ_Plane, [""])
sketch18.MapMode = "FlatFace"
sketch18.AttachmentOffset = App.Placement(App.Vector(0, 0, -5), App.Rotation())
sketch18.addGeometry([
    Part.LineSegment(App.Vector(126.63234, -28.257624, 0), App.Vector(121.63234, -28.257624, 0)),  # 0
    Part.LineSegment(App.Vector(121.63234, -28.257624, 0), App.Vector(126.63234, -23.257624, 0)),  # 1
    Part.LineSegment(App.Vector(126.63234, -23.257624, 0), App.Vector(126.63234, -28.257624, 0)),  # 2
    Part.LineSegment(App.Vector(121.63234, 31.742376, 0), App.Vector(126.63234, 31.742376, 0)),  # 3
    Part.LineSegment(App.Vector(126.63234, 31.742376, 0), App.Vector(126.63234, 26.742376, 0)),  # 4
    Part.LineSegment(App.Vector(126.63234, 26.742376, 0), App.Vector(121.63234, 31.742376, 0)),  # 5
], False)
sketch18.addConstraint([
    Sketcher.Constraint("Coincident", 0, 2, 1, 1),
    Sketcher.Constraint("Coincident", 1, 2, 2, 1),
    Sketcher.Constraint("Coincident", 2, 2, 0, 1),
    Sketcher.Constraint("Coincident", 3, 2, 4, 1),
    Sketcher.Constraint("Coincident", 4, 2, 5, 1),
    Sketcher.Constraint("Coincident", 5, 2, 3, 1),
    Sketcher.Constraint("Horizontal", 0),
    Sketcher.Constraint("Vertical", 2),
    Sketcher.Constraint("Horizontal", 3),
    Sketcher.Constraint("Vertical", 4),
    Sketcher.Constraint("Perpendicular", 1, 5),
    Sketcher.Constraint("Vertical", 2, 2, 3, 2),
    Sketcher.Constraint("Vertical", 0, 2, 5, 2),
    Sketcher.Constraint("Equal", 3, 2),
    Sketcher.Constraint("DistanceX", 0, 2, 0, 1, Q("5 mm")),
    Sketcher.Constraint("DistanceY", 1, 2, 3, 2, Q("55 mm")),
    Sketcher.Constraint("DistanceX", -1, 1, 0, 2, Q("121.63234 mm")),
    Sketcher.Constraint("DistanceY", 0, 2, -1, 1, Q("28.257624 mm")),
])
pocket13 = doc.addObject("PartDesign::Pocket", "Pocket012")
body.addObject(pocket13)
pocket13.Profile = sketch18
pocket13.Length = 10
pocket13.Reversed = True

doc.recompute()
